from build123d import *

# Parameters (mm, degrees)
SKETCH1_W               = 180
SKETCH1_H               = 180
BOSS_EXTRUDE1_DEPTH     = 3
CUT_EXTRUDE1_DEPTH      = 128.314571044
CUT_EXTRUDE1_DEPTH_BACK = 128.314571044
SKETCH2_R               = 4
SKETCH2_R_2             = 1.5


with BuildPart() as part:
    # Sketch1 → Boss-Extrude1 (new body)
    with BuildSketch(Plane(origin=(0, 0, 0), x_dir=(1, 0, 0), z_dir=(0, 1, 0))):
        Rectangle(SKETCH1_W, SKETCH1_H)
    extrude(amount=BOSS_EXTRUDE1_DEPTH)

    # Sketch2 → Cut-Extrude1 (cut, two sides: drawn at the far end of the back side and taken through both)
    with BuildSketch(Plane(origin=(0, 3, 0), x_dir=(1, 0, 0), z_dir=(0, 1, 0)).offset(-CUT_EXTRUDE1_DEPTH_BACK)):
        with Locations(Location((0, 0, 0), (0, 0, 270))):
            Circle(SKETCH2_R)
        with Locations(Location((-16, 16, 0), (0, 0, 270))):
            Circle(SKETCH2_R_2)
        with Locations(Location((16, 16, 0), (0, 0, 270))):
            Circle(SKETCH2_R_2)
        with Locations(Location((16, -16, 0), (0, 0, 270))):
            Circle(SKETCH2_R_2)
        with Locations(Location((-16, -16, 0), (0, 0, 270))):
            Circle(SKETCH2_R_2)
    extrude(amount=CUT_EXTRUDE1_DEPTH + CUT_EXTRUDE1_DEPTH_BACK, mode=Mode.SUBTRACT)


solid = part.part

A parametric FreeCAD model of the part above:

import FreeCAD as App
import Part
import Sketcher

V = App.Vector
Q = App.Units.Quantity

doc = App.newDocument("Part")
body = doc.addObject("PartDesign::Body", "Body")

# Sketch on XZ plane
sketch1 = doc.addObject("Sketcher::SketchObject", "Sketch")
body.addObject(sketch1)
sketch1.AttachmentSupport = (doc.XZ_Plane, [""])
sketch1.MapMode = "FlatFace"
sketch1.addGeometry([
    Part.LineSegment(V(-90, -90, 0), V(-90, 90, 0)),
    Part.LineSegment(V(-90, 90, 0), V(90, 90, 0)),
    Part.LineSegment(V(90, 90, 0), V(90, -90, 0)),
    Part.LineSegment(V(90, -90, 0), V(-90, -90, 0)),
], False)
sketch1.addConstraint([
    Sketcher.Constraint("Coincident", 0, 2, 1, 1),
    Sketcher.Constraint("Coincident", 1, 2, 2, 1),
    Sketcher.Constraint("Coincident", 2, 2, 3, 1),
    Sketcher.Constraint("Coincident", 3, 2, 0, 1),
    Sketcher.Constraint("Vertical", 0),
    Sketcher.Constraint("Horizontal", 1),
    Sketcher.Constraint("Vertical", 2),
    Sketcher.Constraint("Horizontal", 3),
    Sketcher.Constraint("Symmetric", 0, 2, 2, 2, -1, 1),
    Sketcher.Constraint("Equal", 3, 0),
    Sketcher.Constraint("DistanceX", 1, 1, 1, 2, Q("180 mm")),
])
pad1 = doc.addObject("PartDesign::Pad", "Pad")
body.addObject(pad1)
pad1.Profile = sketch1
pad1.Length = 3
pad1.Reversed = True

# Sketch on XZ plane
sketch2 = doc.addObject("Sketcher::SketchObject", "Sketch001")
body.addObject(sketch2)
sketch2.AttachmentSupport = (doc.XZ_Plane, [""])
sketch2.MapMode = "FlatFace"
sketch2.AttachmentOffset = App.Placement(V(0, 0, -3), App.Rotation())
sketch2.addGeometry([
    Part.Circle(V(0, 0, 0), V(0, 0, 1), 4),  # 0
    Part.Circle(V(-16, -16, 0), V(0, 0, 1), 1.5),  # 1
    Part.Circle(V(16, -16, 0), V(0, 0, 1), 1.5),  # 2
    Part.Circle(V(16, 16, 0), V(0, 0, 1), 1.5),  # 3
    Part.Circle(V(-16, 16, 0), V(0, 0, 1), 1.5),  # 4
], False)
sketch2.addConstraint([
    Sketcher.Constraint("Coincident", 0, 3, -1, 1),
    Sketcher.Constraint("Equal", 1, 2),
    Sketcher.Constraint("Equal", 2, 3),
    Sketcher.Constraint("Equal", 3, 4),
    Sketcher.Constraint("Symmetric", 1, 3, 3, 3, -1, 1),
    Sketcher.Constraint("Symmetric", 2, 3, 4, 3, -1, 1),
    Sketcher.Constraint("Symmetric", 1, 3, 2, 3, -2),
    Sketcher.Constraint("Diameter", 0, Q("8 mm")),
    Sketcher.Constraint("Diameter", 1, Q("3 mm")),
    Sketcher.Constraint("DistanceX", 1, 3, -1, 1, Q("16 mm")),
    Sketcher.Constraint("DistanceY", 1, 3, -1, 1, Q("16 mm")),
])
pocket1 = doc.addObject("PartDesign::Pocket", "Pocket")
body.addObject(pocket1)
pocket1.Profile = sketch2
pocket1.Type = "ThroughAll"
pocket1.Midplane = True

doc.recompute()
